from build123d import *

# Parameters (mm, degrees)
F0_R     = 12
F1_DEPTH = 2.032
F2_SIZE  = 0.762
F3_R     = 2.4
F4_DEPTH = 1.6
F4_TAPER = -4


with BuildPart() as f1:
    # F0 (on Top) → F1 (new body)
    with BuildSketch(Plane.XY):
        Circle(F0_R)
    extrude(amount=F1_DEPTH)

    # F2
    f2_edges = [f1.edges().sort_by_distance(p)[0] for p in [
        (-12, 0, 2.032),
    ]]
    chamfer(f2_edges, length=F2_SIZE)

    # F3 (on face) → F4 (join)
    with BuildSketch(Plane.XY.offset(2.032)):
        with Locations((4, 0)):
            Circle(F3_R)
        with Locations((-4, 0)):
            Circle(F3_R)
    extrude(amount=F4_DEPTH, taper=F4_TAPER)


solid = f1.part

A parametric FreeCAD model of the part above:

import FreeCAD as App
import Part
import Sketcher


def edges_at(feature, points):
    """Names of the edges that pass closest to the given points."""
    edges = feature.Shape.Edges
    near = lambda p: min(range(len(edges)), key=lambda i: edges[i].distToShape(Part.Vertex(*p))[0])
    return sorted({f"Edge{near(p) + 1}" for p in points})

doc = App.newDocument("Part")
body = doc.addObject("PartDesign::Body", "Body")

sketch1 = body.newObject("Sketcher::SketchObject", "Sketch")
sketch1.AttachmentSupport = (doc.getObject("XY_Plane"), [""])
sketch1.MapMode = "FlatFace"
sketch1.addGeometry(Part.Circle(App.Vector(0, 0, 0), App.Vector(0, 0, 1), 12), False)
sketch1.addConstraint([
    Sketcher.Constraint("Coincident", 0, 3, -1, 1),
    Sketcher.Constraint("Diameter", 0, 24.0),
])
pad1 = body.newObject("PartDesign::Pad", "Pad")
pad1.Profile = sketch1
pad1.Length = 2.032
doc.recompute()

chamfer = body.newObject("PartDesign::Chamfer", "Chamfer")
chamfer.Base = (pad1, edges_at(pad1, [(-12, 0, 2.032)]))
chamfer.Size = 0.762

sketch2 = body.newObject("Sketcher::SketchObject", "Sketch001")
sketch2.AttachmentSupport = (doc.getObject("XY_Plane"), [""])
sketch2.MapMode = "FlatFace"
sketch2.AttachmentOffset = App.Placement(App.Vector(0, 0, 2.032), App.Rotation())
sketch2.addGeometry([
    Part.Circle(App.Vector(4, 0, 0), App.Vector(0, 0, 1), 2.4),
    Part.Circle(App.Vector(-4, 0, 0), App.Vector(0, 0, 1), 2.4),
], False)
sketch2.addConstraint([
    Sketcher.Constraint("Equal", 0, 1),
    Sketcher.Constraint("Symmetric", 0, 3, 1, 3, -1, 1),
    Sketcher.Constraint("PointOnObject", 0, 3, -1),
    Sketcher.Constraint("Diameter", 0, 4.8),
    Sketcher.Constraint("DistanceX", -1, 1, 0, 3, 4.0),
])
pad2 = body.newObject("PartDesign::Pad", "Pad001")
pad2.Profile = sketch2
pad2.Length = 1.6
pad2.TaperAngle = 4

doc.recompute()
